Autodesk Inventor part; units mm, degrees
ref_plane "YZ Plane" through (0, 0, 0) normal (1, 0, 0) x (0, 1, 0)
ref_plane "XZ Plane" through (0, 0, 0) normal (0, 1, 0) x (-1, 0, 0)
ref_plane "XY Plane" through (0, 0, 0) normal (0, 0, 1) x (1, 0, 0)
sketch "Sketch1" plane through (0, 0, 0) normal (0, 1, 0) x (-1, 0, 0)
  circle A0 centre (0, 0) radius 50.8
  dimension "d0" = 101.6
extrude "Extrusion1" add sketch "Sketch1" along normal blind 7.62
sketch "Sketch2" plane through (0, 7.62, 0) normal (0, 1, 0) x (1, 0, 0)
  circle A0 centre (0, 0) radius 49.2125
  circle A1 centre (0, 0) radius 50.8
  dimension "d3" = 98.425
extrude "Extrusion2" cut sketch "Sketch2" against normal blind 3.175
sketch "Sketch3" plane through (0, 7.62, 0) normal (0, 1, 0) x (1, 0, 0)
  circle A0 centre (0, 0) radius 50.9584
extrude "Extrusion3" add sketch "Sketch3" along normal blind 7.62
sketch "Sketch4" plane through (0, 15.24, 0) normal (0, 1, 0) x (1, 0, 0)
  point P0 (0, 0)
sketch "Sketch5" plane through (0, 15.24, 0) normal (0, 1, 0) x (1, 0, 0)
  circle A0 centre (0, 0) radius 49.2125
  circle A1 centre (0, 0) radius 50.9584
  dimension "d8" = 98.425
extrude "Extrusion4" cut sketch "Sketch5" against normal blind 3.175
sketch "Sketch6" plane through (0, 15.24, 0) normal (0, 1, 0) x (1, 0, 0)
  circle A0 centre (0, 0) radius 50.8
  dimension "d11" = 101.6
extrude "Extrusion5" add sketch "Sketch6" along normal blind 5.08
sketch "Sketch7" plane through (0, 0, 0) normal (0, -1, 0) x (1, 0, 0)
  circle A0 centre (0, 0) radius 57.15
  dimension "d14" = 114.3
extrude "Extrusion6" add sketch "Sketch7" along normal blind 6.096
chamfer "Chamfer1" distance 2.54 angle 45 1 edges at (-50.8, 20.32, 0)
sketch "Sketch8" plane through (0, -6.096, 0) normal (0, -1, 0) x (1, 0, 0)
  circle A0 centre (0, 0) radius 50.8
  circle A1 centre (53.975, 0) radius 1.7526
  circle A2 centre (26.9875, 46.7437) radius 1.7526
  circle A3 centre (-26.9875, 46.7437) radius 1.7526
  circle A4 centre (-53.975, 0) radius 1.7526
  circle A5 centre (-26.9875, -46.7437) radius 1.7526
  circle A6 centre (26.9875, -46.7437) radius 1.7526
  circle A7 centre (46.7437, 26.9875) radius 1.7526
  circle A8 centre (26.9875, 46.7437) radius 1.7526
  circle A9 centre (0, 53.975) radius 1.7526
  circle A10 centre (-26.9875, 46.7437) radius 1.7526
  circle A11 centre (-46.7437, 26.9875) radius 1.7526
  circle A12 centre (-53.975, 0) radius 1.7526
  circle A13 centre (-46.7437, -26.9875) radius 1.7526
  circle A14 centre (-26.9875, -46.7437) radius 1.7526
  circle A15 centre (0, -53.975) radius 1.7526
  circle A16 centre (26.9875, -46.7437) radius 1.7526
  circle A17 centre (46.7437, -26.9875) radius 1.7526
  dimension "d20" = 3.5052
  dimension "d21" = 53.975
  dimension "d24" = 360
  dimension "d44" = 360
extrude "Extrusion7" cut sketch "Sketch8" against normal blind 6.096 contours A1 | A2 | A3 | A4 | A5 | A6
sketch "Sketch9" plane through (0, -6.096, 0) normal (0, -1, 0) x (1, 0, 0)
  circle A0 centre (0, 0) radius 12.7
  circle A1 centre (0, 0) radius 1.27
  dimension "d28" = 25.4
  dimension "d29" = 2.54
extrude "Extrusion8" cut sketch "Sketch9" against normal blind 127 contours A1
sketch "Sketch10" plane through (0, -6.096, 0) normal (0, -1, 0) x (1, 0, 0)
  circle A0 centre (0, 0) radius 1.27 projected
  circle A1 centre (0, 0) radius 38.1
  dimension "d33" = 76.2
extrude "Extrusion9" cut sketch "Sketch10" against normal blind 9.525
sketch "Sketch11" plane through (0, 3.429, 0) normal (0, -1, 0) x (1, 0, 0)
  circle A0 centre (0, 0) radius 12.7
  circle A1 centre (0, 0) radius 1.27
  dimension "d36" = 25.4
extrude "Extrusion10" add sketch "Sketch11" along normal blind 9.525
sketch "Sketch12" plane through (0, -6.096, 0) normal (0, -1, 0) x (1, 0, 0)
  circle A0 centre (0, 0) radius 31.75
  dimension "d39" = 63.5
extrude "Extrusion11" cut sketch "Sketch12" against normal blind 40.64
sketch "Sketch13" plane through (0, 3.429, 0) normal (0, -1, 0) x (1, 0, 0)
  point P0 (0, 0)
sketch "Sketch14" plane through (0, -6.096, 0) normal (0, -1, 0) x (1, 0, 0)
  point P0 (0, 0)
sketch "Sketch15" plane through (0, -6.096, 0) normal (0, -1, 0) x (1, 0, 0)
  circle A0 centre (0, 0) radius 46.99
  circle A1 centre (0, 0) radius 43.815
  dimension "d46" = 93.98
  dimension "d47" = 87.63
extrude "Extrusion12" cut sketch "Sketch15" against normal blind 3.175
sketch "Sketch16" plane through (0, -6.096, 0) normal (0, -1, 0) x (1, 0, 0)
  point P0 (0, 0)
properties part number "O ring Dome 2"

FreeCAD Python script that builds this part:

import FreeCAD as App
import Part
import Sketcher
Q = App.Units.Quantity


def edges_at(feature, points):
    """Names of the edges that pass closest to the given points."""
    edges = feature.Shape.Edges
    near = lambda p: min(range(len(edges)), key=lambda i: edges[i].distToShape(Part.Vertex(*p))[0])
    return sorted({f"Edge{near(p) + 1}" for p in points})

doc = App.newDocument("Part")
body = doc.addObject("PartDesign::Body", "Body")

# Sketch on XZ plane
sketch1 = body.newObject("Sketcher::SketchObject", "Sketch")
sketch1.AttachmentSupport = (doc.getObject("XZ_Plane"), [""])
sketch1.MapMode = "FlatFace"
sketch1.addGeometry(Part.Circle(App.Vector(0, 0, 0), App.Vector(0, 0, 1), 51), False)
sketch1.addConstraint([
    Sketcher.Constraint("Coincident", 0, 3, -1, 1),
    Sketcher.Constraint("Diameter", 0, Q("4 in")),
])
pad1 = body.newObject("PartDesign::Pad", "Pad")
pad1.Profile = sketch1
pad1.Length = Q("0.3 in")
pad1.Reversed = True

# Sketch on XZ plane
sketch2 = body.newObject("Sketcher::SketchObject", "Sketch001")
sketch2.AttachmentSupport = (doc.getObject("XZ_Plane"), [""])
sketch2.MapMode = "FlatFace"
sketch2.AttachmentOffset = App.Placement(App.Vector(0, 0, -0.3 * 25.4), App.Rotation())
sketch2.addGeometry([
    Part.Circle(App.Vector(0, 0, 0), App.Vector(0, 0, 1), 51),
    Part.Circle(App.Vector(0, 0, 0), App.Vector(0, 0, 1), 49),
], False)
sketch2.addConstraint([
    Sketcher.Constraint("Coincident", 0, 3, -1, 1),
    Sketcher.Constraint("Coincident", 1, 3, -1, 1),
    Sketcher.Constraint("Diameter", 0, Q("4 in")),
    Sketcher.Constraint("Diameter", 1, Q("3.875 in")),
])
pocket1 = body.newObject("PartDesign::Pocket", "Pocket")
pocket1.Profile = sketch2
pocket1.Length = Q("0.125 in")
pocket1.Reversed = True

# Sketch on XZ plane
sketch3 = body.newObject("Sketcher::SketchObject", "Sketch002")
sketch3.AttachmentSupport = (doc.getObject("XZ_Plane"), [""])
sketch3.MapMode = "FlatFace"
sketch3.AttachmentOffset = App.Placement(App.Vector(0, 0, -0.3 * 25.4), App.Rotation())
sketch3.addGeometry(Part.Circle(App.Vector(0, 0, 0), App.Vector(0, 0, 1), 51), False)
sketch3.addConstraint([
    Sketcher.Constraint("Coincident", 0, 3, -1, 1),
    Sketcher.Constraint("Diameter", 0, 101.9168),
])
pad2 = body.newObject("PartDesign::Pad", "Pad001")
pad2.Profile = sketch3
pad2.Length = Q("0.3 in")
pad2.Reversed = True

# Sketch on XZ plane
sketch4 = body.newObject("Sketcher::SketchObject", "Sketch003")
sketch4.AttachmentSupport = (doc.getObject("XZ_Plane"), [""])
sketch4.MapMode = "FlatFace"
sketch4.AttachmentOffset = App.Placement(App.Vector(0, 0, -0.6 * 25.4), App.Rotation())
sketch4.addGeometry([
    Part.Circle(App.Vector(0, 0, 0), App.Vector(0, 0, 1), 51),
    Part.Circle(App.Vector(0, 0, 0), App.Vector(0, 0, 1), 49),
], False)
sketch4.addConstraint([
    Sketcher.Constraint("Coincident", 0, 3, -1, 1),
    Sketcher.Constraint("Coincident", 1, 3, -1, 1),
    Sketcher.Constraint("Diameter", 1, Q("3.875 in")),
    Sketcher.Constraint("Diameter", 0, 101.9168),
])
pocket2 = body.newObject("PartDesign::Pocket", "Pocket001")
pocket2.Profile = sketch4
pocket2.Length = Q("0.125 in")
pocket2.Reversed = True

# Sketch on XZ plane
sketch5 = body.newObject("Sketcher::SketchObject", "Sketch004")
sketch5.AttachmentSupport = (doc.getObject("XZ_Plane"), [""])
sketch5.MapMode = "FlatFace"
sketch5.AttachmentOffset = App.Placement(App.Vector(0, 0, -0.6 * 25.4), App.Rotation())
sketch5.addGeometry(Part.Circle(App.Vector(0, 0, 0), App.Vector(0, 0, 1), 51), False)
sketch5.addConstraint([
    Sketcher.Constraint("Coincident", 0, 3, -1, 1),
    Sketcher.Constraint("Diameter", 0, Q("4 in")),
])
pad3 = body.newObject("PartDesign::Pad", "Pad002")
pad3.Profile = sketch5
pad3.Length = Q("0.2 in")
pad3.Reversed = True

# Sketch on XZ plane
sketch6 = body.newObject("Sketcher::SketchObject", "Sketch005")
sketch6.AttachmentSupport = (doc.getObject("XZ_Plane"), [""])
sketch6.MapMode = "FlatFace"
sketch6.addGeometry(Part.Circle(App.Vector(0, 0, 0), App.Vector(0, 0, 1), 57), False)
sketch6.addConstraint([
    Sketcher.Constraint("Coincident", 0, 3, -1, 1),
    Sketcher.Constraint("Diameter", 0, Q("4.5 in")),
])
pad4 = body.newObject("PartDesign::Pad", "Pad003")
pad4.Profile = sketch6
pad4.Length = Q("0.24 in")
doc.recompute()

chamfer = body.newObject("PartDesign::Chamfer", "Chamfer")
chamfer.Base = (pad4, edges_at(pad4, [(-50.8, 20.32, 0)]))
chamfer.Size = Q("0.1 in")

# Sketch on XZ plane
sketch7 = body.newObject("Sketcher::SketchObject", "Sketch006")
sketch7.AttachmentSupport = (doc.getObject("XZ_Plane"), [""])
sketch7.MapMode = "FlatFace"
sketch7.AttachmentOffset = App.Placement(App.Vector(0, 0, 0.24 * 25.4), App.Rotation())
sketch7.addGeometry([
    Part.Circle(App.Vector(54, 0, 0), App.Vector(0, 0, 1), 1.8),  # 0
    Part.Circle(App.Vector(27, 46.7, 0), App.Vector(0, 0, 1), 1.8),  # 1
    Part.Circle(App.Vector(-27, 46.7, 0), App.Vector(0, 0, 1), 1.8),  # 2
    Part.Circle(App.Vector(-54, 0, 0), App.Vector(0, 0, 1), 1.8),  # 3
    Part.Circle(App.Vector(-27, -46.7, 0), App.Vector(0, 0, 1), 1.8),  # 4
    Part.Circle(App.Vector(27, -46.7, 0), App.Vector(0, 0, 1), 1.8),  # 5
], False)
sketch7.addConstraint([
    Sketcher.Constraint("Equal", 0, 1),
    Sketcher.Constraint("Equal", 1, 2),
    Sketcher.Constraint("Equal", 2, 3),
    Sketcher.Constraint("Equal", 3, 4),
    Sketcher.Constraint("Equal", 4, 5),
    Sketcher.Constraint("Symmetric", 0, 3, 3, 3, -1, 1),
    Sketcher.Constraint("Symmetric", 1, 3, 4, 3, -1, 1),
    Sketcher.Constraint("Symmetric", 2, 3, 5, 3, -1, 1),
    Sketcher.Constraint("Symmetric", 1, 3, 2, 3, -2),
    Sketcher.Constraint("PointOnObject", 0, 3, -1),
    Sketcher.Constraint("Diameter", 0, Q("0.138 in")),
    Sketcher.Constraint("DistanceX", -1, 1, 0, 3, Q("2.125 in")),
    Sketcher.Constraint("DistanceX", 2, 3, 1, 3, Q("2.125 in")),
    Sketcher.Constraint("DistanceY", -1, 1, 1, 3, Q("1.8403 in")),
])
pocket3 = body.newObject("PartDesign::Pocket", "Pocket002")
pocket3.Profile = sketch7
pocket3.Length = Q("0.24 in")

# Sketch on XZ plane
sketch8 = body.newObject("Sketcher::SketchObject", "Sketch007")
sketch8.AttachmentSupport = (doc.getObject("XZ_Plane"), [""])
sketch8.MapMode = "FlatFace"
sketch8.AttachmentOffset = App.Placement(App.Vector(0, 0, 0.24 * 25.4), App.Rotation())
sketch8.addGeometry(Part.Circle(App.Vector(0, 0, 0), App.Vector(0, 0, 1), 1.3), False)
sketch8.addConstraint([
    Sketcher.Constraint("Coincident", 0, 3, -1, 1),
    Sketcher.Constraint("Diameter", 0, Q("0.1 in")),
])
pocket4 = body.newObject("PartDesign::Pocket", "Pocket003")
pocket4.Profile = sketch8
pocket4.Length = Q("5 in")

# Sketch on XZ plane
sketch9 = body.newObject("Sketcher::SketchObject", "Sketch008")
sketch9.AttachmentSupport = (doc.getObject("XZ_Plane"), [""])
sketch9.MapMode = "FlatFace"
sketch9.AttachmentOffset = App.Placement(App.Vector(0, 0, 0.24 * 25.4), App.Rotation())
sketch9.addGeometry([
    Part.Circle(App.Vector(0, 0, 0), App.Vector(0, 0, 1), 38.1),
    Part.Circle(App.Vector(0, 0, 0), App.Vector(0, 0, 1), 1.3),
], False)
sketch9.addConstraint([
    Sketcher.Constraint("Coincident", 0, 3, -1, 1),
    Sketcher.Constraint("Coincident", 1, 3, -1, 1),
    Sketcher.Constraint("Diameter", 0, Q("3 in")),
    Sketcher.Constraint("Diameter", 1, Q("0.1 in")),
])
pocket5 = body.newObject("PartDesign::Pocket", "Pocket004")
pocket5.Profile = sketch9
pocket5.Length = Q("0.375 in")

# Sketch on XZ plane
sketch10 = body.newObject("Sketcher::SketchObject", "Sketch009")
sketch10.AttachmentSupport = (doc.getObject("XZ_Plane"), [""])
sketch10.MapMode = "FlatFace"
sketch10.AttachmentOffset = App.Placement(App.Vector(0, 0, -0.135 * 25.4), App.Rotation())
sketch10.addGeometry([
    Part.Circle(App.Vector(0, 0, 0), App.Vector(0, 0, 1), 12.7),
    Part.Circle(App.Vector(0, 0, 0), App.Vector(0, 0, 1), 1.3),
], False)
sketch10.addConstraint([
    Sketcher.Constraint("Coincident", 0, 3, -1, 1),
    Sketcher.Constraint("Coincident", 1, 3, -1, 1),
    Sketcher.Constraint("Diameter", 0, Q("1 in")),
    Sketcher.Constraint("Diameter", 1, Q("0.1 in")),
])
pad5 = body.newObject("PartDesign::Pad", "Pad004")
pad5.Profile = sketch10
pad5.Length = Q("0.375 in")

# Sketch on XZ plane
sketch11 = body.newObject("Sketcher::SketchObject", "Sketch010")
sketch11.AttachmentSupport = (doc.getObject("XZ_Plane"), [""])
sketch11.MapMode = "FlatFace"
sketch11.AttachmentOffset = App.Placement(App.Vector(0, 0, 0.24 * 25.4), App.Rotation())
sketch11.addGeometry(Part.Circle(App.Vector(0, 0, 0), App.Vector(0, 0, 1), 32), False)
sketch11.addConstraint([
    Sketcher.Constraint("Coincident", 0, 3, -1, 1),
    Sketcher.Constraint("Diameter", 0, Q("2.5 in")),
])
pocket6 = body.newObject("PartDesign::Pocket", "Pocket005")
pocket6.Profile = sketch11
pocket6.Length = Q("1.6 in")

# Sketch on XZ plane
sketch12 = body.newObject("Sketcher::SketchObject", "Sketch011")
sketch12.AttachmentSupport = (doc.getObject("XZ_Plane"), [""])
sketch12.MapMode = "FlatFace"
sketch12.AttachmentOffset = App.Placement(App.Vector(0, 0, 0.24 * 25.4), App.Rotation())
sketch12.addGeometry([
    Part.Circle(App.Vector(0, 0, 0), App.Vector(0, 0, 1), 47),
    Part.Circle(App.Vector(0, 0, 0), App.Vector(0, 0, 1), 44),
], False)
sketch12.addConstraint([
    Sketcher.Constraint("Coincident", 0, 3, -1, 1),
    Sketcher.Constraint("Coincident", 1, 3, -1, 1),
    Sketcher.Constraint("Diameter", 0, Q("3.7 in")),
    Sketcher.Constraint("Diameter", 1, Q("3.45 in")),
])
pocket7 = body.newObject("PartDesign::Pocket", "Pocket006")
pocket7.Profile = sketch12
pocket7.Length = Q("0.125 in")

doc.recompute()
